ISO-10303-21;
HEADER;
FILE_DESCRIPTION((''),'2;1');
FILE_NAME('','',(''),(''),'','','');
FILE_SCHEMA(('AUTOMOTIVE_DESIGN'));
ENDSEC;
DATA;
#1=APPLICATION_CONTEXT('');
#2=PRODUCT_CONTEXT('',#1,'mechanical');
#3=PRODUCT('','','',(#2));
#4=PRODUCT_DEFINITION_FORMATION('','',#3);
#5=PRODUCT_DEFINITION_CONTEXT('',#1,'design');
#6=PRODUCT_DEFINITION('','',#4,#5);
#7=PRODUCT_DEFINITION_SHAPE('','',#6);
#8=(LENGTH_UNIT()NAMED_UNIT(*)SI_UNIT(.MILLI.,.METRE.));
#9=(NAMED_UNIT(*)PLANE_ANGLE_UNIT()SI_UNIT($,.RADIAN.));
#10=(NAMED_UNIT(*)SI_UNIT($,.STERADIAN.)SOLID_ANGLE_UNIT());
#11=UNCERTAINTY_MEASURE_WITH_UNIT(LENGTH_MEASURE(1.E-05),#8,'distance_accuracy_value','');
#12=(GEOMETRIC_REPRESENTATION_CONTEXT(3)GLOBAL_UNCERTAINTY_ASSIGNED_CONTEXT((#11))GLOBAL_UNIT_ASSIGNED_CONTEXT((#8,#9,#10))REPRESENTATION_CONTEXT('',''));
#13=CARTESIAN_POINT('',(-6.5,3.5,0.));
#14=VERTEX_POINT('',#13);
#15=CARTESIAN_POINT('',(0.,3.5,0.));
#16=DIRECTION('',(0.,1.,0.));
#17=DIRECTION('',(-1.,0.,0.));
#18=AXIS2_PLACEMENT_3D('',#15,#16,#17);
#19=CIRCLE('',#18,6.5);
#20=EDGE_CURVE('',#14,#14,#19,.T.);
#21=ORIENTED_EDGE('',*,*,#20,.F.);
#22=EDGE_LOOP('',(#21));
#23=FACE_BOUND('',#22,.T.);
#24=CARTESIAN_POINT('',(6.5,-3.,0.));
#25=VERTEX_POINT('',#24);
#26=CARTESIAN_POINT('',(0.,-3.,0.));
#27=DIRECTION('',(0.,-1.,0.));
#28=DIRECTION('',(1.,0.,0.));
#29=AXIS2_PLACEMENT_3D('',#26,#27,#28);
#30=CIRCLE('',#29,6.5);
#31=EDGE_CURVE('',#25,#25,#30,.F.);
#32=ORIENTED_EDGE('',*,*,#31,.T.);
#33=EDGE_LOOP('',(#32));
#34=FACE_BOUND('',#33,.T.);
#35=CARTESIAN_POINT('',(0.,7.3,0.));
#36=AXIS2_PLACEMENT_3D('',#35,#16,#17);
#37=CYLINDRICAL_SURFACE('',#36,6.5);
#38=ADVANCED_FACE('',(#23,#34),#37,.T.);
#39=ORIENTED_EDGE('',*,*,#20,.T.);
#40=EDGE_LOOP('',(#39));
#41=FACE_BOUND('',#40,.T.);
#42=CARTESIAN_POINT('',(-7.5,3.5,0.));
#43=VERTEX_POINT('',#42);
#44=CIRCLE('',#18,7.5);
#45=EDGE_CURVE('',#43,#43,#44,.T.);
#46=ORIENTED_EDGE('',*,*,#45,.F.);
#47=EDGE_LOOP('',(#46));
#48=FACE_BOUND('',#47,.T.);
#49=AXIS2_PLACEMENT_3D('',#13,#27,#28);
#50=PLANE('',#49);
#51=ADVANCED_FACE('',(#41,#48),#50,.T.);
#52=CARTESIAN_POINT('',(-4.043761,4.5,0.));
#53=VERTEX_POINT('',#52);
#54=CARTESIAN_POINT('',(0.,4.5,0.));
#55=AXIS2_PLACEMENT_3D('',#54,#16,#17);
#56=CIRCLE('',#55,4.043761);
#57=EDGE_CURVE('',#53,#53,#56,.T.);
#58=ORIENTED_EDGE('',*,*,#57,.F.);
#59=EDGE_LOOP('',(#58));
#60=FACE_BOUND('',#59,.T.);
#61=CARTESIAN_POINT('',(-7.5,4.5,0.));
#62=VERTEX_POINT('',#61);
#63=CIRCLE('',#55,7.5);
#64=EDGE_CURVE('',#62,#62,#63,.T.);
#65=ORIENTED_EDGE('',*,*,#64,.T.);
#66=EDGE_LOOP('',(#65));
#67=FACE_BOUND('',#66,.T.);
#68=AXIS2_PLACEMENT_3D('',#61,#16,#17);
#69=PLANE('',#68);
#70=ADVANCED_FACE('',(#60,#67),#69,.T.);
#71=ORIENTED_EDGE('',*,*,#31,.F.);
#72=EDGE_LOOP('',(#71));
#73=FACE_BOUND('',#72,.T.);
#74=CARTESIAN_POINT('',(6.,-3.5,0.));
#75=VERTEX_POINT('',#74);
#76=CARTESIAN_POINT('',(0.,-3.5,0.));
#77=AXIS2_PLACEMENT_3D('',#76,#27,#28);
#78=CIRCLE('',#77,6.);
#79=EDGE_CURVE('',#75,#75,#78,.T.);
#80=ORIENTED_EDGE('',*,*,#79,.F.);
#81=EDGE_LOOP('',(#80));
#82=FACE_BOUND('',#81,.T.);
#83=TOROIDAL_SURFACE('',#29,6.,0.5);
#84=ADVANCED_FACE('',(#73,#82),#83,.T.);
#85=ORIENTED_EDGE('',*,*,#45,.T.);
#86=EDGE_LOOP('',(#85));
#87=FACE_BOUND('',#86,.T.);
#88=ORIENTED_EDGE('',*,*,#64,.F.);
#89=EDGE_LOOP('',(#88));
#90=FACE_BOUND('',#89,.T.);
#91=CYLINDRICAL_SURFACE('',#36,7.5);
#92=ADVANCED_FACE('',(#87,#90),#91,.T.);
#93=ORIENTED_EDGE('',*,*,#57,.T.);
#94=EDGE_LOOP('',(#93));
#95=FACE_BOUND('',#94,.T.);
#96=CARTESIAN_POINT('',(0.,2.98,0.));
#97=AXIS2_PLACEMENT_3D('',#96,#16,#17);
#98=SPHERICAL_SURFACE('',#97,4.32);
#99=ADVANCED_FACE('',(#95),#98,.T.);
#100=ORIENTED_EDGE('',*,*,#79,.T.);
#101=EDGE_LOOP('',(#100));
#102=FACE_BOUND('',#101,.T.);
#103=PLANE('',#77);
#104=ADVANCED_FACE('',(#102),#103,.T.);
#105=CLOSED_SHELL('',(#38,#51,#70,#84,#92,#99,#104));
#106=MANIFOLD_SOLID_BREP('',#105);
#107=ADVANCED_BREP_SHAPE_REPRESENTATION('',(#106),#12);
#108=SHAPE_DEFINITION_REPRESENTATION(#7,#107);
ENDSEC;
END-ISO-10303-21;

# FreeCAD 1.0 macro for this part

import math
import FreeCAD as App
import Part
import Sketcher
Q = App.Units.Quantity


def edges_at(feature, points):
    """Names of the edges that pass closest to the given points."""
    edges = feature.Shape.Edges
    near = lambda p: min(range(len(edges)), key=lambda i: edges[i].distToShape(Part.Vertex(*p))[0])
    return sorted({f"Edge{near(p) + 1}" for p in points})

doc = App.newDocument("Part")
body = doc.addObject("PartDesign::Body", "Body")

sketch1 = body.newObject("Sketcher::SketchObject", "Sketch")
sketch1.AttachmentSupport = (doc.getObject("XY_Plane"), [""])
sketch1.MapMode = "FlatFace"
sketch1.addGeometry([
    Part.LineSegment(App.Vector(-7.5, 3.5, 0), App.Vector(-6.5, 3.5, 0)),
    Part.LineSegment(App.Vector(-6.5, 3.5, 0), App.Vector(-6.5, -3.5, 0)),
    Part.LineSegment(App.Vector(-6.5, -3.5, 0), App.Vector(0, -3.5, 0)),
    Part.LineSegment(App.Vector(0, -3.5, 0), App.Vector(0, 7.3, 0)),
    Part.ArcOfCircle(Part.Circle(App.Vector(0, 3, 0), App.Vector(0, 0, 1), 4.3), math.radians(90), math.radians(159)),
    Part.LineSegment(App.Vector(-4, 4.5, 0), App.Vector(-7.5, 4.5, 0)),
    Part.LineSegment(App.Vector(-7.5, 4.5, 0), App.Vector(-7.5, 3.5, 0)),
], False)
sketch1.addConstraint([
    Sketcher.Constraint("Coincident", 0, 2, 1, 1),
    Sketcher.Constraint("Coincident", 1, 2, 2, 1),
    Sketcher.Constraint("Coincident", 2, 2, 3, 1),
    Sketcher.Constraint("Coincident", 3, 2, 4, 1),
    Sketcher.Constraint("Coincident", 4, 2, 5, 1),
    Sketcher.Constraint("Coincident", 5, 2, 6, 1),
    Sketcher.Constraint("Coincident", 6, 2, 0, 1),
    Sketcher.Constraint("Horizontal", 0),
    Sketcher.Constraint("Vertical", 1),
    Sketcher.Constraint("Horizontal", 2),
    Sketcher.Constraint("Vertical", 3),
    Sketcher.Constraint("Horizontal", 5),
    Sketcher.Constraint("Vertical", 6),
    Sketcher.Constraint("PointOnObject", 4, 3, -2),
    Sketcher.Constraint("PointOnObject", 2, 2, -2),
    Sketcher.Constraint("Equal", 0, 6),
    Sketcher.Constraint("DistanceX", 0, 1, 0, 2, Q("1 mm")),
    Sketcher.Constraint("DistanceY", 1, 2, 1, 1, Q("7 mm")),
    Sketcher.Constraint("Radius", 4, Q("4.32 mm")),
    Sketcher.Constraint("DistanceX", 2, 1, 2, 2, Q("6.5 mm")),
    Sketcher.Constraint("DistanceY", 3, 1, 3, 2, Q("10.8 mm")),
    Sketcher.Constraint("DistanceY", -1, 1, 0, 2, Q("3.5 mm")),
])
revolution = body.newObject("PartDesign::Revolution", "Revolution")
revolution.Profile = sketch1
revolution.ReferenceAxis = (sketch1, ["V_Axis"])
revolution.Angle = 360
doc.recompute()

fillet = body.newObject("PartDesign::Fillet", "Fillet")
fillet.Base = (revolution, edges_at(revolution, [(6.5, -3.5, 0)]))
fillet.Radius = 0.5

doc.recompute()
